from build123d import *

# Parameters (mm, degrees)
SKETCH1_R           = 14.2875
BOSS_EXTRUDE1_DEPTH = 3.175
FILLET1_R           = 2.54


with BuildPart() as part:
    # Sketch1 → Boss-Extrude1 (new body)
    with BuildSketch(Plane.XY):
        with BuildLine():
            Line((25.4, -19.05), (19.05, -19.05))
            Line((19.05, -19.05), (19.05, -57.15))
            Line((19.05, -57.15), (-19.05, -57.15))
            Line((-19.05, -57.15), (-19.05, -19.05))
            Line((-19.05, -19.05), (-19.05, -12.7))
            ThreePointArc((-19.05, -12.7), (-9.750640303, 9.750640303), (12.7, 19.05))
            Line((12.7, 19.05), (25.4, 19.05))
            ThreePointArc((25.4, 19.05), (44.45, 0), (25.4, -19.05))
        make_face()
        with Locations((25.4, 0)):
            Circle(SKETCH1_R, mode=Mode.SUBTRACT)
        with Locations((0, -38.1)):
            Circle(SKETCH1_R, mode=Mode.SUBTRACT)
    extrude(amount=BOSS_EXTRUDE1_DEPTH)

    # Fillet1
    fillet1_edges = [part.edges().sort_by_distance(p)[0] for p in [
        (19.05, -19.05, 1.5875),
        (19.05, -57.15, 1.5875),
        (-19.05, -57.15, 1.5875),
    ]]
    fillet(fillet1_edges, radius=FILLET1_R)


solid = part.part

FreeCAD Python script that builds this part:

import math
import FreeCAD as App
import Part
import Sketcher

V = App.Vector
Q = App.Units.Quantity


def edges_at(feature, points):
    """Names of the edges that pass closest to the given points."""
    edges = feature.Shape.Edges
    near = lambda p: min(range(len(edges)), key=lambda i: edges[i].distToShape(Part.Vertex(*p))[0])
    return sorted({f"Edge{near(p) + 1}" for p in points})

doc = App.newDocument("Part")
body = doc.addObject("PartDesign::Body", "Body")

# Sketch on XY plane
sketch1 = doc.addObject("Sketcher::SketchObject", "Sketch")
body.addObject(sketch1)
sketch1.AttachmentSupport = (doc.XY_Plane, [""])
sketch1.MapMode = "FlatFace"
sketch1.addGeometry(Part.LineSegment(V(19, -19, 0), V(25, -19, 0)), False)
sketch1.addGeometry(Part.ArcOfCircle(Part.Circle(V(25, 0, 0), V(0, 0, 1), 19), math.radians(-90), math.radians(90)), False)
sketch1.addGeometry(Part.LineSegment(V(25, 19, 0), V(13, 19, 0)), False)
sketch1.addGeometry(Part.ArcOfCircle(Part.Circle(V(13, -13, 0), V(0, 0, 1), 32), math.radians(90), math.radians(180)), False)
sketch1.addGeometry(Part.LineSegment(V(-19, -13, 0), V(-19, -57, 0)), False)
sketch1.addGeometry(Part.LineSegment(V(-19, -57, 0), V(19, -57, 0)), False)
sketch1.addGeometry(Part.LineSegment(V(19, -57, 0), V(19, -19, 0)), False)
sketch1.addGeometry(Part.Circle(V(0, -38, 0), V(0, 0, 1), 14), False)
sketch1.addGeometry(Part.Circle(V(25, 0, 0), V(0, 0, 1), 14), False)
sketch1.addConstraint(Sketcher.Constraint("Tangent", 0, 2, 1, 1))
sketch1.addConstraint(Sketcher.Constraint("Tangent", 1, 2, 2, 1))
sketch1.addConstraint(Sketcher.Constraint("Tangent", 2, 2, 3, 1))
sketch1.addConstraint(Sketcher.Constraint("Tangent", 3, 2, 4, 1))
sketch1.addConstraint(Sketcher.Constraint("Coincident", 4, 2, 5, 1))
sketch1.addConstraint(Sketcher.Constraint("Coincident", 5, 2, 6, 1))
sketch1.addConstraint(Sketcher.Constraint("Coincident", 6, 2, 0, 1))
sketch1.addConstraint(Sketcher.Constraint("Horizontal", 0))
sketch1.addConstraint(Sketcher.Constraint("Horizontal", 2))
sketch1.addConstraint(Sketcher.Constraint("Vertical", 4))
sketch1.addConstraint(Sketcher.Constraint("Horizontal", 5))
sketch1.addConstraint(Sketcher.Constraint("Vertical", 6))
sketch1.addConstraint(Sketcher.Constraint("Coincident", 8, 3, 1, 3))
sketch1.addConstraint(Sketcher.Constraint("Equal", 7, 8))
sketch1.addConstraint(Sketcher.Constraint("PointOnObject", 1, 3, -1))
sketch1.addConstraint(Sketcher.Constraint("PointOnObject", 7, 3, -2))
sketch1.addConstraint(Sketcher.Constraint("Equal", 5, 6))
sketch1.addConstraint(Sketcher.Constraint("Radius", 1, Q("0.75 in")))
sketch1.addConstraint(Sketcher.Constraint("Radius", 3, Q("1.25 in")))
sketch1.addConstraint(Sketcher.Constraint("Diameter", 7, Q("1.125 in")))
sketch1.addConstraint(Sketcher.Constraint("DistanceX", 2, 2, 2, 1, Q("0.5 in")))
sketch1.addConstraint(Sketcher.Constraint("DistanceX", 5, 1, 5, 2, Q("1.5 in")))
sketch1.addConstraint(Sketcher.Constraint("DistanceX", -1, 1, 1, 3, Q("1 in")))
sketch1.addConstraint(Sketcher.Constraint("DistanceY", 7, 3, 3, 3, Q("1 in")))
pad1 = doc.addObject("PartDesign::Pad", "Pad")
body.addObject(pad1)
pad1.Profile = sketch1
pad1.Length = Q("0.125 in")
doc.recompute()

fillet = doc.addObject("PartDesign::Fillet", "Fillet")
body.addObject(fillet)
fillet.Base = (pad1, edges_at(pad1, [(19.05, -19.05, 1.587), (19.05, -57.15, 1.587), (-19.05, -57.15, 1.587)]))
fillet.Radius = Q("0.1 in")

doc.recompute()
